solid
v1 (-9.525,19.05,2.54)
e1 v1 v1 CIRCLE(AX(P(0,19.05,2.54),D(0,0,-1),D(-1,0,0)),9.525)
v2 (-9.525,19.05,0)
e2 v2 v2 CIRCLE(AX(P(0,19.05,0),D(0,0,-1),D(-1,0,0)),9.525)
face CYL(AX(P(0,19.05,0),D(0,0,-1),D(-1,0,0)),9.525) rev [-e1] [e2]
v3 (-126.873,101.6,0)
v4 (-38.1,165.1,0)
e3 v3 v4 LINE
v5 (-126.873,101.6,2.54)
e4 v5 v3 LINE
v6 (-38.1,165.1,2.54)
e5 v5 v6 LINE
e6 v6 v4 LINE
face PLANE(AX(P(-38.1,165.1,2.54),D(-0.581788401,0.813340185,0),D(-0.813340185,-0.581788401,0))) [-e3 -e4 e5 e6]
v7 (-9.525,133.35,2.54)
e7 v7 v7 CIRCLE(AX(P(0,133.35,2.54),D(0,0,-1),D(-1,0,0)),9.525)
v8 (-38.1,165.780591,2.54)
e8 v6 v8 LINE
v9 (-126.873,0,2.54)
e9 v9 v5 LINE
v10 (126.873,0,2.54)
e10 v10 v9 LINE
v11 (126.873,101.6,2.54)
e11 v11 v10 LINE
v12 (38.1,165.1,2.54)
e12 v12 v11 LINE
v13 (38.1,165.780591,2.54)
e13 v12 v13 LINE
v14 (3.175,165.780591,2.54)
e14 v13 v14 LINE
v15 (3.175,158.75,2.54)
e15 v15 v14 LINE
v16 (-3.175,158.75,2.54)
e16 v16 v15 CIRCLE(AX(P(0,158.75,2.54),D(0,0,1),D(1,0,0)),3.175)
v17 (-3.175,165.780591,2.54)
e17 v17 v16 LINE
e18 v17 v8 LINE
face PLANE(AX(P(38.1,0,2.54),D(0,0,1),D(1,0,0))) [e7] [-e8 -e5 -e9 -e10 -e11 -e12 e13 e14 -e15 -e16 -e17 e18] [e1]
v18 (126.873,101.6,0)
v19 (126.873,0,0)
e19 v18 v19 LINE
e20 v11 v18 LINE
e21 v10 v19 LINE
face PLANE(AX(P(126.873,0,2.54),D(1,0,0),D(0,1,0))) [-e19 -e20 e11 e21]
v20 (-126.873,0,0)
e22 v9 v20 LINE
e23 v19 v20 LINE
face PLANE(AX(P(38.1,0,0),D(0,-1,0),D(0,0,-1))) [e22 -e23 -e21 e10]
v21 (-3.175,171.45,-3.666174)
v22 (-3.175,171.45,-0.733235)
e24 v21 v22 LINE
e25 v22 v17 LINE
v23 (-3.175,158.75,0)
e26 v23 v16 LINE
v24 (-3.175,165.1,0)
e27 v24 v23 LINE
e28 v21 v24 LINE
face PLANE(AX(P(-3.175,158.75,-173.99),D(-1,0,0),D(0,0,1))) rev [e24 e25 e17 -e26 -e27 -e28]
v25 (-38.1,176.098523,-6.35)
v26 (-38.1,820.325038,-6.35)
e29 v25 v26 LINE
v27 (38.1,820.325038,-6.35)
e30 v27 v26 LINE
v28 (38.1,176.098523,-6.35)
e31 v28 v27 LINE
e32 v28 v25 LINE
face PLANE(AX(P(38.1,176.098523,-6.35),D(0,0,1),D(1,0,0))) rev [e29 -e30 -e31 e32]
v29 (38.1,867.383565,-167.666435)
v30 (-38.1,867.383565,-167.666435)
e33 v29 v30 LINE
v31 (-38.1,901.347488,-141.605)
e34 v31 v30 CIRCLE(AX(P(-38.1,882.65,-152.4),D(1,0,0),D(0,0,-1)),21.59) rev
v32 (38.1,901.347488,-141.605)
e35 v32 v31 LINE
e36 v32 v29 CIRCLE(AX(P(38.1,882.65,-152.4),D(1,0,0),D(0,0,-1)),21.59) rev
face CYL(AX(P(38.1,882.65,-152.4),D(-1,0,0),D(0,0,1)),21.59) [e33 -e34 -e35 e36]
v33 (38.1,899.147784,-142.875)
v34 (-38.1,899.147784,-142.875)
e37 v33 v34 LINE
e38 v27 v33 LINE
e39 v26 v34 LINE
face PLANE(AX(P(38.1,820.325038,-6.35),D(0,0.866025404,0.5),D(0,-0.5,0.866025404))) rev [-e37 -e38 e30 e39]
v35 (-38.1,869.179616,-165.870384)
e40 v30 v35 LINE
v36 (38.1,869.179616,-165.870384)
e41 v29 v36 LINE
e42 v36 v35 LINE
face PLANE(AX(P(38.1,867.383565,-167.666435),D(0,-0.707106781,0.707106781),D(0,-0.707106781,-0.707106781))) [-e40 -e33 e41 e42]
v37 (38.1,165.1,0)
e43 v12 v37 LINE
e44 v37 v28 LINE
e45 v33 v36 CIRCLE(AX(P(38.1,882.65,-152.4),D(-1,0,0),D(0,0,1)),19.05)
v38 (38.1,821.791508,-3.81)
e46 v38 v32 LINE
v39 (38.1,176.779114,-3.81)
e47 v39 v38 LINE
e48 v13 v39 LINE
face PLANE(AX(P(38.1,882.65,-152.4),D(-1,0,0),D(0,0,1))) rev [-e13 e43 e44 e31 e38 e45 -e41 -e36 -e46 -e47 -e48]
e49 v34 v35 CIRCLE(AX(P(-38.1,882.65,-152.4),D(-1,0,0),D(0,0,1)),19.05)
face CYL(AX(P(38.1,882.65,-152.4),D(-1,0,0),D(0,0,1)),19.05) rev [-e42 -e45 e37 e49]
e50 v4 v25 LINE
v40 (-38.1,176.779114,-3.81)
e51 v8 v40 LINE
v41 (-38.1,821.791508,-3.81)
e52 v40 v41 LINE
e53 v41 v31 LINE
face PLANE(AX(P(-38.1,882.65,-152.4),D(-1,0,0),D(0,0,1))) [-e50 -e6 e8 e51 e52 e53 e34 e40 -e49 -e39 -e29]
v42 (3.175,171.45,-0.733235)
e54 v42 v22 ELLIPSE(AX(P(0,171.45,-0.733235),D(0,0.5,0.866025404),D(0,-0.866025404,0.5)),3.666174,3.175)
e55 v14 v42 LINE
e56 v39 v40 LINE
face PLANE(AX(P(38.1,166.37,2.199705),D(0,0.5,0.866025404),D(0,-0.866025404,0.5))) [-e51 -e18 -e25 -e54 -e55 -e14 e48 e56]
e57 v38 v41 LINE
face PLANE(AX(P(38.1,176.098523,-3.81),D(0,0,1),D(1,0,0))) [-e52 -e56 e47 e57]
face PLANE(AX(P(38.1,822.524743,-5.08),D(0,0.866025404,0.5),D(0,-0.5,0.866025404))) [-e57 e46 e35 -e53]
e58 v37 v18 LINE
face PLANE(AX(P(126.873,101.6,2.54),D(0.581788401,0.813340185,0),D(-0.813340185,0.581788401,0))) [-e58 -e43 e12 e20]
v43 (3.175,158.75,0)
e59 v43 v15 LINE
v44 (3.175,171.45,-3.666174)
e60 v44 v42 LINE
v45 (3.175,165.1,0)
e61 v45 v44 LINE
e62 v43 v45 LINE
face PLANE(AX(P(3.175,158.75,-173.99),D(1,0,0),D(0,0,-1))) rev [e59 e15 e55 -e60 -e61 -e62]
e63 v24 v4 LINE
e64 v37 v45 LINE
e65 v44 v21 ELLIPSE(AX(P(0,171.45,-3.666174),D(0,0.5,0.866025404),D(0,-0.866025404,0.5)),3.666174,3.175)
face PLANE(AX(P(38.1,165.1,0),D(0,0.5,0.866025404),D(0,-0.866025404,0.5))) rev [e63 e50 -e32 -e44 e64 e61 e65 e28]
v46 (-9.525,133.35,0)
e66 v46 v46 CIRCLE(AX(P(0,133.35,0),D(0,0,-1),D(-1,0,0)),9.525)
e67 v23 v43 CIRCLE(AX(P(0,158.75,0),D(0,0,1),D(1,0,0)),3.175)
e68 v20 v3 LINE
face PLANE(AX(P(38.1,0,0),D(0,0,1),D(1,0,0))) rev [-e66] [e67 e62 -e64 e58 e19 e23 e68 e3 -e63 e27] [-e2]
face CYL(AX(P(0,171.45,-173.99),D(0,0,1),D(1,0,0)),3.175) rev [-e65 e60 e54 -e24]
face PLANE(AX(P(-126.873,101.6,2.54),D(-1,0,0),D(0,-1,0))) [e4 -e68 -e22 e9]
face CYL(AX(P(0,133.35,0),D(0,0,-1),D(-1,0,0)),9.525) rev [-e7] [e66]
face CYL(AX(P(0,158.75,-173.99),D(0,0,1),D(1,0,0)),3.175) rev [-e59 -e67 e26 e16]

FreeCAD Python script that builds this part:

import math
import FreeCAD as App
import Part
import Sketcher
from FreeCAD import Vector
Q = App.Units.Quantity


def add_polygon(sketch, points):
    """Adds a closed chain of lines whose ends are joined by coincident constraints."""
    first, n = sketch.GeometryCount, len(points)
    for a, b in zip(points, points[1:] + points[:1]):
        sketch.addGeometry(Part.LineSegment(App.Vector(*a, 0), App.Vector(*b, 0)), False)
    for i in range(n):
        sketch.addConstraint(Sketcher.Constraint("Coincident", first + i, 2, first + (i + 1) % n, 1))

doc = App.newDocument("Part")
body = doc.addObject("PartDesign::Body", "Body")

sketch1 = doc.addObject("Sketcher::SketchObject", "Sketch")
body.addObject(sketch1)
sketch1.AttachmentSupport = (doc.YZ_Plane, [""])
sketch1.MapMode = "FlatFace"
sketch1.addGeometry([
    Part.LineSegment(Vector(0, 0, 0), Vector(165.1, 0, 0)),
    Part.LineSegment(Vector(165.1, 0, 0), Vector(176.1, -6.3, 0)),
    Part.LineSegment(Vector(176.1, -6.3, 0), Vector(820.3, -6.3, 0)),
    Part.LineSegment(Vector(820.3, -6.3, 0), Vector(899.1, -142.9, 0)),
    Part.ArcOfCircle(Part.Circle(Vector(882.6, -152.4, 0), Vector(0, 0, 1), 19.1), math.radians(-135), math.radians(30)),
    Part.LineSegment(Vector(869.2, -165.9, 0), Vector(867.4, -167.7, 0)),
    Part.ArcOfCircle(Part.Circle(Vector(882.6, -152.4, 0), Vector(0, 0, 1), 21.6), math.radians(-135), math.radians(30)),
    Part.LineSegment(Vector(901.3, -141.6, 0), Vector(821.8, -3.8, 0)),
    Part.LineSegment(Vector(821.8, -3.8, 0), Vector(176.8, -3.8, 0)),
    Part.LineSegment(Vector(176.8, -3.8, 0), Vector(165.8, 2.5, 0)),
    Part.LineSegment(Vector(165.8, 2.5, 0), Vector(0, 2.5, 0)),
    Part.LineSegment(Vector(0, 2.5, 0), Vector(0, 0, 0)),
], False)
sketch1.addConstraint([
    Sketcher.Constraint("Coincident", 0, 2, 1, 1),
    Sketcher.Constraint("Coincident", 1, 2, 2, 1),
    Sketcher.Constraint("Coincident", 2, 2, 3, 1),
    Sketcher.Constraint("Tangent", 3, 2, 4, 2),
    Sketcher.Constraint("Coincident", 4, 1, 5, 1),
    Sketcher.Constraint("Coincident", 5, 2, 6, 1),
    Sketcher.Constraint("Tangent", 6, 2, 7, 1),
    Sketcher.Constraint("Coincident", 7, 2, 8, 1),
    Sketcher.Constraint("Coincident", 8, 2, 9, 1),
    Sketcher.Constraint("Coincident", 9, 2, 10, 1),
    Sketcher.Constraint("Coincident", 10, 2, 11, 1),
    Sketcher.Constraint("Coincident", 11, 2, 0, 1),
    Sketcher.Constraint("Horizontal", 0),
    Sketcher.Constraint("Horizontal", 2),
    Sketcher.Constraint("Horizontal", 8),
    Sketcher.Constraint("Horizontal", 10),
    Sketcher.Constraint("Vertical", 11),
    Sketcher.Constraint("Coincident", 11, 2, -1, 1),
    Sketcher.Constraint("Coincident", 6, 3, 4, 3),
    Sketcher.Constraint("Parallel", 3, 7),
    Sketcher.Constraint("Parallel", 1, 9),
    Sketcher.Constraint("Equal", 1, 9),
    Sketcher.Constraint("Radius", 4, Q("0.75 in")),
    Sketcher.Constraint("Radius", 6, Q("0.85 in")),
    Sketcher.Constraint("DistanceX", 0, 1, 0, 2, Q("6.5 in")),
    Sketcher.Constraint("DistanceY", 11, 2, 11, 1, Q("0.1 in")),
    Sketcher.Constraint("DistanceY", 4, 3, -1, 1, Q("6 in")),
    Sketcher.Constraint("Angle", 1, Q("-30 deg")),
    Sketcher.Constraint("Angle", 3, Q("-60 deg")),
    Sketcher.Constraint("Angle", 5, Q("-135 deg")),
    Sketcher.Constraint("Distance", 1, Q("0.5 in")),
    Sketcher.Constraint("DistanceX", -1, 1, 4, 3, Q("34.75 in")),
    Sketcher.Constraint("DistanceX", 10, 2, 10, 1, 165.780591),
    Sketcher.Constraint("DistanceX", 4, 1, 3, 2, 29.968168),
])
pad1 = doc.addObject("PartDesign::Pad", "Pad")
body.addObject(pad1)
pad1.Profile = sketch1
pad1.Length = Q("3 in")
pad1.Midplane = True

sketch2 = doc.addObject("Sketcher::SketchObject", "Sketch001")
body.addObject(sketch2)
sketch2.AttachmentSupport = (doc.XY_Plane, [""])
sketch2.MapMode = "FlatFace"
add_polygon(sketch2, [(127, 0), (-127, 0), (-127, 102), (-38, 165), (38, 165), (127, 102)])
sketch2.addConstraint([
    Sketcher.Constraint("Horizontal", 0),
    Sketcher.Constraint("Vertical", 1),
    Sketcher.Constraint("Horizontal", 3),
    Sketcher.Constraint("Vertical", 5),
    Sketcher.Constraint("Symmetric", 0, 2, 5, 2, -1, 1),
    Sketcher.Constraint("Horizontal", 1, 2, 4, 2),
    Sketcher.Constraint("Equal", 2, 4),
    Sketcher.Constraint("DistanceX", 3, 1, 3, 2, Q("3 in")),
    Sketcher.Constraint("DistanceY", 1, 1, 1, 2, Q("4 in")),
    Sketcher.Constraint("DistanceX", 0, 2, 0, 1, Q("9.99 in")),
    Sketcher.Constraint("DistanceY", -1, 1, 2, 2, Q("6.5 in")),
])
pad2 = doc.addObject("PartDesign::Pad", "Pad001")
body.addObject(pad2)
pad2.Profile = sketch2
pad2.Length = Q("0.1 in")

sketch3 = doc.addObject("Sketcher::SketchObject", "Sketch002")
body.addObject(sketch3)
sketch3.AttachmentSupport = (doc.XY_Plane, [""])
sketch3.MapMode = "FlatFace"
sketch3.addGeometry([
    Part.Circle(Vector(0, 19, 0), Vector(0, 0, 1), 10),
    Part.Circle(Vector(0, 133, 0), Vector(0, 0, 1), 10),
], False)
sketch3.addConstraint([
    Sketcher.Constraint("Equal", 0, 1),
    Sketcher.Constraint("PointOnObject", 0, 3, -2),
    Sketcher.Constraint("PointOnObject", 1, 3, -2),
    Sketcher.Constraint("Diameter", 0, Q("0.75 in")),
    Sketcher.Constraint("DistanceY", 0, 3, 1, 3, Q("4.5 in")),
    Sketcher.Constraint("DistanceY", -1, 1, 0, 3, Q("0.75 in")),
])
doc.recompute()
hole = doc.addObject("PartDesign::Hole", "Hole")
body.addObject(hole)
hole.Profile = sketch3
hole.ThreadType = "None"
hole.Diameter = Q("0.75 in")
hole.DepthType = "ThroughAll"
hole.Reversed = True

sketch4 = doc.addObject("Sketcher::SketchObject", "Sketch003")
body.addObject(sketch4)
sketch4.AttachmentSupport = (doc.XY_Plane, [""])
sketch4.MapMode = "FlatFace"
sketch4.AttachmentOffset = App.Placement(Vector(0, 0, 0.1 * 25.4), App.Rotation())
sketch4.addGeometry([
    Part.LineSegment(Vector(-3.2, 171.4, 0), Vector(-3.2, 158.8, 0)),
    Part.ArcOfCircle(Part.Circle(Vector(0, 158.8, 0), Vector(0, 0, 1), 3.2), math.radians(180), math.radians(360)),
    Part.LineSegment(Vector(3.2, 158.8, 0), Vector(3.2, 171.4, 0)),
    Part.ArcOfCircle(Part.Circle(Vector(0, 171.4, 0), Vector(0, 0, 1), 3.2), math.radians(0), math.radians(180)),
], False)
sketch4.addConstraint([
    Sketcher.Constraint("Tangent", 0, 2, 1, 1),
    Sketcher.Constraint("Tangent", 1, 2, 2, 1),
    Sketcher.Constraint("Tangent", 2, 2, 3, 1),
    Sketcher.Constraint("Tangent", 3, 2, 0, 1),
    Sketcher.Constraint("Vertical", 0),
    Sketcher.Constraint("Vertical", 2),
    Sketcher.Constraint("PointOnObject", 1, 3, -2),
    Sketcher.Constraint("DistanceY", 0, 2, 0, 1, Q("0.5 in")),
    Sketcher.Constraint("Radius", 1, Q("0.125 in")),
    Sketcher.Constraint("DistanceY", -1, 1, 1, 3, Q("6.25 in")),
])
pocket1 = doc.addObject("PartDesign::Pocket", "Pocket")
body.addObject(pocket1)
pocket1.Profile = sketch4
pocket1.Type = "ThroughAll"

doc.recompute()
